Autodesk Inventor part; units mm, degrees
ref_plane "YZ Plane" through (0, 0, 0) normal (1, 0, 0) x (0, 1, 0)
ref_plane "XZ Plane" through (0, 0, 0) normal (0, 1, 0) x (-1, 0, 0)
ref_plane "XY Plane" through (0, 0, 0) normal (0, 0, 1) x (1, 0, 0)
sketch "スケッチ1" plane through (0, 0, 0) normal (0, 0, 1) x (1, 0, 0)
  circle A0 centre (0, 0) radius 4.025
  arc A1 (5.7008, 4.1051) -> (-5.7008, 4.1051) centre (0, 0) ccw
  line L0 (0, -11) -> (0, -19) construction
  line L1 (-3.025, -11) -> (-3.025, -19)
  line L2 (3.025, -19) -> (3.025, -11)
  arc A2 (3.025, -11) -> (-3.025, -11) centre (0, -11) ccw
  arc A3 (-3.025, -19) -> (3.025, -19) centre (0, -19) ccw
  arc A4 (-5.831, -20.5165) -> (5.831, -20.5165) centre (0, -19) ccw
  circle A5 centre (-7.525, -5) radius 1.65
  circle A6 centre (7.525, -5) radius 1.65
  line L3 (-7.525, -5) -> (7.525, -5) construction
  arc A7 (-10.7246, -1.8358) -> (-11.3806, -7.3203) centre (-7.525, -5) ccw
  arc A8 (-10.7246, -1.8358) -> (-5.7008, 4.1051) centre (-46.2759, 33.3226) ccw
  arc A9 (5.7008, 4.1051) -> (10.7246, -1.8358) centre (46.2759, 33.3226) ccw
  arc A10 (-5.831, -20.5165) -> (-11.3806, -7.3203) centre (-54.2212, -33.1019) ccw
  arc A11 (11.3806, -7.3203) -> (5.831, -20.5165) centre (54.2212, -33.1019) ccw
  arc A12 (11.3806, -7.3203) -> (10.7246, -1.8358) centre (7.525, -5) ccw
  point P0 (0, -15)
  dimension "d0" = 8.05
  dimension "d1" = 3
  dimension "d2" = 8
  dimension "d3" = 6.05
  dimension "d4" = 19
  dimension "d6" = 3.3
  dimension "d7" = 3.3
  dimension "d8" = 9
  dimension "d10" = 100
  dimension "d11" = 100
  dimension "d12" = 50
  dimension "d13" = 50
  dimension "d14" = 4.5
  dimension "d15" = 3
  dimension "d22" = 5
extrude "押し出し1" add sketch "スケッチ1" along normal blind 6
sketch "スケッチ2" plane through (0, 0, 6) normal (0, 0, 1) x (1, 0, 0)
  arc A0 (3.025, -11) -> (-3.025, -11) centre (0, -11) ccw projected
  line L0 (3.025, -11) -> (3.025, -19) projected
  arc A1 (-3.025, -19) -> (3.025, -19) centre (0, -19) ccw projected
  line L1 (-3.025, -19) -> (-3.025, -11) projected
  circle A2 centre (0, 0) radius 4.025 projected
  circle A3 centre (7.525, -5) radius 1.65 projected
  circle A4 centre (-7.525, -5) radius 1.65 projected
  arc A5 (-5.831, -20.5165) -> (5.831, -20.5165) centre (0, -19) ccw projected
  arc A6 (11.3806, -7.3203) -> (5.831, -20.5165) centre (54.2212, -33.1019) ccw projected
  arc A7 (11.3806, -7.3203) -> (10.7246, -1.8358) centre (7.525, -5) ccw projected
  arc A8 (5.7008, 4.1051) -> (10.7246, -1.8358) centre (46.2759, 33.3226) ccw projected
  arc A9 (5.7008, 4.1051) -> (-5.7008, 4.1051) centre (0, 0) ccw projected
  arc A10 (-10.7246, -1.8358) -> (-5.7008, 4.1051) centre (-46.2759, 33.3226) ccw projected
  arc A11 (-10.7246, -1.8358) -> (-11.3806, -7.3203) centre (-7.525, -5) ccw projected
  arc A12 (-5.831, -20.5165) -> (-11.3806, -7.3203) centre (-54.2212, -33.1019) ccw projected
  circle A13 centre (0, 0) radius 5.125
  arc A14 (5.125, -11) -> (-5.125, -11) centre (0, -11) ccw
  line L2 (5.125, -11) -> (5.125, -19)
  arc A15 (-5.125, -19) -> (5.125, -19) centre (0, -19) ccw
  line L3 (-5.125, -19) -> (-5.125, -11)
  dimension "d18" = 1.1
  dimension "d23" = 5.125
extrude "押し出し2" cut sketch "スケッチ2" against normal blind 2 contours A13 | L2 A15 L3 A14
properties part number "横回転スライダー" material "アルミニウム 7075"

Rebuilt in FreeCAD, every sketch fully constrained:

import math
import FreeCAD as App
import Part
import Sketcher
from FreeCAD import Vector

doc = App.newDocument("Part")
body = doc.addObject("PartDesign::Body", "Body")

sketch1 = body.newObject("Sketcher::SketchObject", "Sketch")
sketch1.AttachmentSupport = (doc.getObject("XY_Plane"), [""])
sketch1.MapMode = "FlatFace"
sketch1.addGeometry([
    Part.ArcOfCircle(Part.Circle(Vector(46.3, 33.3, 0), Vector(0, 0, 1), 50), math.radians(-144.24), math.radians(-135.32)),
    Part.ArcOfCircle(Part.Circle(Vector(0, 0, 0), Vector(0, 0, 1), 7), math.radians(36), math.radians(144)),
    Part.ArcOfCircle(Part.Circle(Vector(-46.3, 33.3, 0), Vector(0, 0, 1), 50), math.radians(-44.68), math.radians(-35.76)),
    Part.ArcOfCircle(Part.Circle(Vector(-7.5, -5, 0), Vector(0, 0, 1), 4.5), math.radians(135), math.radians(211)),
    Part.ArcOfCircle(Part.Circle(Vector(-54.2, -33.1, 0), Vector(0, 0, 1), 50), math.radians(14.58), math.radians(31.04)),
    Part.ArcOfCircle(Part.Circle(Vector(0, -19, 0), Vector(0, 0, 1), 6), math.radians(-165), math.radians(-15)),
    Part.ArcOfCircle(Part.Circle(Vector(54.2, -33.1, 0), Vector(0, 0, 1), 50), math.radians(148.96), math.radians(165.42)),
    Part.ArcOfCircle(Part.Circle(Vector(7.5, -5, 0), Vector(0, 0, 1), 4.5), math.radians(-31), math.radians(45)),
    Part.LineSegment(Vector(-3, -19, 0), Vector(-3, -11, 0)),
    Part.ArcOfCircle(Part.Circle(Vector(0, -11, 0), Vector(0, 0, 1), 3), math.radians(0), math.radians(180)),
    Part.LineSegment(Vector(3, -11, 0), Vector(3, -19, 0)),
    Part.ArcOfCircle(Part.Circle(Vector(0, -19, 0), Vector(0, 0, 1), 3), math.radians(180), math.radians(360)),
    Part.Circle(Vector(-7.5, -5, 0), Vector(0, 0, 1), 1.6),
    Part.Circle(Vector(7.5, -5, 0), Vector(0, 0, 1), 1.6),
    Part.Circle(Vector(0, 0, 0), Vector(0, 0, 1), 4),
], False)
sketch1.addConstraint([
    Sketcher.Constraint("Tangent", 0, 1, 1, 1),
    Sketcher.Constraint("Tangent", 1, 2, 2, 2),
    Sketcher.Constraint("Tangent", 2, 1, 3, 1),
    Sketcher.Constraint("Tangent", 3, 2, 4, 2),
    Sketcher.Constraint("Tangent", 4, 1, 5, 1),
    Sketcher.Constraint("Tangent", 5, 2, 6, 2),
    Sketcher.Constraint("Tangent", 6, 1, 7, 1),
    Sketcher.Constraint("Tangent", 7, 2, 0, 2),
    Sketcher.Constraint("Tangent", 8, 2, 9, 2),
    Sketcher.Constraint("Tangent", 9, 1, 10, 1),
    Sketcher.Constraint("Tangent", 10, 2, 11, 2),
    Sketcher.Constraint("Tangent", 11, 1, 8, 1),
    Sketcher.Constraint("Vertical", 8),
    Sketcher.Constraint("Vertical", 10),
    Sketcher.Constraint("Coincident", 1, 3, -1, 1),
    Sketcher.Constraint("Coincident", 14, 3, -1, 1),
    Sketcher.Constraint("Coincident", 11, 3, 5, 3),
    Sketcher.Constraint("Coincident", 12, 3, 3, 3),
    Sketcher.Constraint("Coincident", 13, 3, 7, 3),
    Sketcher.Constraint("Equal", 3, 7),
    Sketcher.Constraint("Equal", 12, 13),
    Sketcher.Constraint("Symmetric", 3, 3, 7, 3, -2),
    Sketcher.Constraint("PointOnObject", 5, 3, -2),
    Sketcher.Constraint("Diameter", 12, 3.3),
    Sketcher.Constraint("Radius", 3, 4.5),
    Sketcher.Constraint("Diameter", 14, 8.05),
    Sketcher.Constraint("DistanceY", 8, 1, 8, 2, 8.0),
    Sketcher.Constraint("DistanceY", 3, 3, -1, 1, 5.0),
    Sketcher.Constraint("DistanceY", 5, 3, -1, 1, 19.0),
    Sketcher.Constraint("Radius", 9, 3.025),
    Sketcher.Constraint("DistanceX", 3, 3, 8, 2, 4.5),
    Sketcher.Constraint("Radius", 1, 7.025),
    Sketcher.Constraint("Radius", 4, 50.002),
    Sketcher.Constraint("Radius", 5, 6.025),
    Sketcher.Constraint("Radius", 6, 49.998),
    Sketcher.Constraint("Radius", 0, 50.0115),
    Sketcher.Constraint("Radius", 2, 49.9886),
])
pad1 = body.newObject("PartDesign::Pad", "Pad")
pad1.Profile = sketch1
pad1.Length = 6

sketch2 = body.newObject("Sketcher::SketchObject", "Sketch001")
sketch2.AttachmentSupport = (doc.getObject("XY_Plane"), [""])
sketch2.MapMode = "FlatFace"
sketch2.AttachmentOffset = App.Placement(Vector(0, 0, 6), App.Rotation())
sketch2.addGeometry([
    Part.Circle(Vector(0, 0, 0), Vector(0, 0, 1), 5.1),
    Part.Circle(Vector(0, 0, 0), Vector(0, 0, 1), 4),
    Part.LineSegment(Vector(5.1, -19, 0), Vector(5.1, -11, 0)),
    Part.ArcOfCircle(Part.Circle(Vector(0, -11, 0), Vector(0, 0, 1), 5.1), math.radians(0), math.radians(180)),
    Part.LineSegment(Vector(-5.1, -11, 0), Vector(-5.1, -19, 0)),
    Part.ArcOfCircle(Part.Circle(Vector(0, -19, 0), Vector(0, 0, 1), 5.1), math.radians(180), math.radians(360)),
    Part.ArcOfCircle(Part.Circle(Vector(0, -11, 0), Vector(0, 0, 1), 3), math.radians(0), math.radians(180)),
    Part.LineSegment(Vector(3, -11, 0), Vector(3, -19, 0)),
    Part.ArcOfCircle(Part.Circle(Vector(0, -19, 0), Vector(0, 0, 1), 3), math.radians(180), math.radians(360)),
    Part.LineSegment(Vector(-3, -19, 0), Vector(-3, -11, 0)),
], False)
sketch2.addConstraint([
    Sketcher.Constraint("Tangent", 2, 2, 3, 1),
    Sketcher.Constraint("Tangent", 3, 2, 4, 1),
    Sketcher.Constraint("Tangent", 4, 2, 5, 1),
    Sketcher.Constraint("Tangent", 5, 2, 2, 1),
    Sketcher.Constraint("Tangent", 6, 1, 7, 1),
    Sketcher.Constraint("Tangent", 7, 2, 8, 2),
    Sketcher.Constraint("Tangent", 8, 1, 9, 1),
    Sketcher.Constraint("Tangent", 9, 2, 6, 2),
    Sketcher.Constraint("Vertical", 2),
    Sketcher.Constraint("Vertical", 4),
    Sketcher.Constraint("Vertical", 7),
    Sketcher.Constraint("Vertical", 9),
    Sketcher.Constraint("Coincident", 0, 3, -1, 1),
    Sketcher.Constraint("Coincident", 1, 3, -1, 1),
    Sketcher.Constraint("Coincident", 6, 3, 3, 3),
    Sketcher.Constraint("Equal", 0, 3),
    Sketcher.Constraint("PointOnObject", 3, 3, -2),
    Sketcher.Constraint("Horizontal", 8, 3, 4, 2),
    Sketcher.Constraint("Diameter", 0, 10.25),
    Sketcher.Constraint("Diameter", 1, 8.05),
    Sketcher.Constraint("DistanceY", 2, 1, 2, 2, 8.0),
    Sketcher.Constraint("DistanceY", 3, 3, -1, 1, 11.0),
    Sketcher.Constraint("Radius", 6, 3.025),
])
pocket1 = body.newObject("PartDesign::Pocket", "Pocket")
pocket1.Profile = sketch2
pocket1.Length = 2

doc.recompute()
